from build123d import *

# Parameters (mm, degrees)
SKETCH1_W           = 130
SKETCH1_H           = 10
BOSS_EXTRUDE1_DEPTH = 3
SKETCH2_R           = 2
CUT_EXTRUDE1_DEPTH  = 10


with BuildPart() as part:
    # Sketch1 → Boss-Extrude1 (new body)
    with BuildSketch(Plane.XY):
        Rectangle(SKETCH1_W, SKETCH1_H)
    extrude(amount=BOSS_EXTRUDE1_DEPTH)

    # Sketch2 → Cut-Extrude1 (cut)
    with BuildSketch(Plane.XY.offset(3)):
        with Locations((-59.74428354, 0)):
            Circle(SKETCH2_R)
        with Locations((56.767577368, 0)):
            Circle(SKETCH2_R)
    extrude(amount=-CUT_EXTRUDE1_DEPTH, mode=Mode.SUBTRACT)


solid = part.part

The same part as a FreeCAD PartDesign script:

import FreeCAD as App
import Part
import Sketcher


def add_polygon(sketch, points):
    """Adds a closed chain of lines whose ends are joined by coincident constraints."""
    first, n = sketch.GeometryCount, len(points)
    for a, b in zip(points, points[1:] + points[:1]):
        sketch.addGeometry(Part.LineSegment(App.Vector(*a, 0), App.Vector(*b, 0)), False)
    for i in range(n):
        sketch.addConstraint(Sketcher.Constraint("Coincident", first + i, 2, first + (i + 1) % n, 1))

doc = App.newDocument("Part")
params = doc.addObject("Spreadsheet::Sheet", "Params")
for row, (alias, value) in enumerate([
    ("sketch1_width", "130 mm"),
    ("sketch1_height", "10 mm"),
    ("pad1_length", "3 mm"),
    ("sketch2_diameter", "4 mm"),
    ("pocket1_length", "10 mm"),
], start=1):
    params.set(f"A{row}", alias)
    params.set(f"B{row}", "=" + value)
    params.setAlias(f"B{row}", alias)

body = doc.addObject("PartDesign::Body", "Body")

sketch1 = doc.addObject("Sketcher::SketchObject", "Sketch")
body.addObject(sketch1)
sketch1.AttachmentSupport = (doc.XY_Plane, [""])
sketch1.MapMode = "FlatFace"
add_polygon(sketch1, [(-65, 5), (-65, -5), (65, -5), (65, 5)])
sketch1.addConstraint(Sketcher.Constraint("Vertical", 0))
sketch1.addConstraint(Sketcher.Constraint("Horizontal", 1))
sketch1.addConstraint(Sketcher.Constraint("Vertical", 2))
sketch1.addConstraint(Sketcher.Constraint("Horizontal", 3))
sketch1.addConstraint(Sketcher.Constraint("Symmetric", 0, 2, 2, 2, -1, 1))
sketch1.addConstraint(Sketcher.Constraint("DistanceX", 1, 1, 1, 2, 130.0))
sketch1.addConstraint(Sketcher.Constraint("DistanceY", 0, 2, 0, 1, 10.0))
sketch1.setExpression("Constraints[9]", "Params.sketch1_width")
sketch1.setExpression("Constraints[10]", "Params.sketch1_height")
pad1 = doc.addObject("PartDesign::Pad", "Pad")
body.addObject(pad1)
pad1.Profile = sketch1
pad1.setExpression("Length", "Params.pad1_length")

sketch2 = doc.addObject("Sketcher::SketchObject", "Sketch001")
body.addObject(sketch2)
sketch2.AttachmentSupport = (doc.XY_Plane, [""])
sketch2.MapMode = "FlatFace"
sketch2.AttachmentOffset = App.Placement(App.Vector(0, 0, 3), App.Rotation())
sketch2.addGeometry(Part.Circle(App.Vector(-59.744284, 0, 0), App.Vector(0, 0, 1), 2), False)
sketch2.addGeometry(Part.Circle(App.Vector(56.767577, 0, 0), App.Vector(0, 0, 1), 2), False)
sketch2.addConstraint(Sketcher.Constraint("Equal", 0, 1))
sketch2.addConstraint(Sketcher.Constraint("PointOnObject", 0, 3, -1))
sketch2.addConstraint(Sketcher.Constraint("PointOnObject", 1, 3, -1))
sketch2.addConstraint(Sketcher.Constraint("Diameter", 0, 4.0))
sketch2.addConstraint(Sketcher.Constraint("DistanceX", 0, 3, 1, 3, 116.511861))
sketch2.addConstraint(Sketcher.Constraint("DistanceX", 0, 3, -1, 1, 59.744284))
sketch2.setExpression("Constraints[3]", "Params.sketch2_diameter")
pocket1 = doc.addObject("PartDesign::Pocket", "Pocket")
body.addObject(pocket1)
pocket1.Profile = sketch2
pocket1.setExpression("Length", "Params.pocket1_length")

doc.recompute()
